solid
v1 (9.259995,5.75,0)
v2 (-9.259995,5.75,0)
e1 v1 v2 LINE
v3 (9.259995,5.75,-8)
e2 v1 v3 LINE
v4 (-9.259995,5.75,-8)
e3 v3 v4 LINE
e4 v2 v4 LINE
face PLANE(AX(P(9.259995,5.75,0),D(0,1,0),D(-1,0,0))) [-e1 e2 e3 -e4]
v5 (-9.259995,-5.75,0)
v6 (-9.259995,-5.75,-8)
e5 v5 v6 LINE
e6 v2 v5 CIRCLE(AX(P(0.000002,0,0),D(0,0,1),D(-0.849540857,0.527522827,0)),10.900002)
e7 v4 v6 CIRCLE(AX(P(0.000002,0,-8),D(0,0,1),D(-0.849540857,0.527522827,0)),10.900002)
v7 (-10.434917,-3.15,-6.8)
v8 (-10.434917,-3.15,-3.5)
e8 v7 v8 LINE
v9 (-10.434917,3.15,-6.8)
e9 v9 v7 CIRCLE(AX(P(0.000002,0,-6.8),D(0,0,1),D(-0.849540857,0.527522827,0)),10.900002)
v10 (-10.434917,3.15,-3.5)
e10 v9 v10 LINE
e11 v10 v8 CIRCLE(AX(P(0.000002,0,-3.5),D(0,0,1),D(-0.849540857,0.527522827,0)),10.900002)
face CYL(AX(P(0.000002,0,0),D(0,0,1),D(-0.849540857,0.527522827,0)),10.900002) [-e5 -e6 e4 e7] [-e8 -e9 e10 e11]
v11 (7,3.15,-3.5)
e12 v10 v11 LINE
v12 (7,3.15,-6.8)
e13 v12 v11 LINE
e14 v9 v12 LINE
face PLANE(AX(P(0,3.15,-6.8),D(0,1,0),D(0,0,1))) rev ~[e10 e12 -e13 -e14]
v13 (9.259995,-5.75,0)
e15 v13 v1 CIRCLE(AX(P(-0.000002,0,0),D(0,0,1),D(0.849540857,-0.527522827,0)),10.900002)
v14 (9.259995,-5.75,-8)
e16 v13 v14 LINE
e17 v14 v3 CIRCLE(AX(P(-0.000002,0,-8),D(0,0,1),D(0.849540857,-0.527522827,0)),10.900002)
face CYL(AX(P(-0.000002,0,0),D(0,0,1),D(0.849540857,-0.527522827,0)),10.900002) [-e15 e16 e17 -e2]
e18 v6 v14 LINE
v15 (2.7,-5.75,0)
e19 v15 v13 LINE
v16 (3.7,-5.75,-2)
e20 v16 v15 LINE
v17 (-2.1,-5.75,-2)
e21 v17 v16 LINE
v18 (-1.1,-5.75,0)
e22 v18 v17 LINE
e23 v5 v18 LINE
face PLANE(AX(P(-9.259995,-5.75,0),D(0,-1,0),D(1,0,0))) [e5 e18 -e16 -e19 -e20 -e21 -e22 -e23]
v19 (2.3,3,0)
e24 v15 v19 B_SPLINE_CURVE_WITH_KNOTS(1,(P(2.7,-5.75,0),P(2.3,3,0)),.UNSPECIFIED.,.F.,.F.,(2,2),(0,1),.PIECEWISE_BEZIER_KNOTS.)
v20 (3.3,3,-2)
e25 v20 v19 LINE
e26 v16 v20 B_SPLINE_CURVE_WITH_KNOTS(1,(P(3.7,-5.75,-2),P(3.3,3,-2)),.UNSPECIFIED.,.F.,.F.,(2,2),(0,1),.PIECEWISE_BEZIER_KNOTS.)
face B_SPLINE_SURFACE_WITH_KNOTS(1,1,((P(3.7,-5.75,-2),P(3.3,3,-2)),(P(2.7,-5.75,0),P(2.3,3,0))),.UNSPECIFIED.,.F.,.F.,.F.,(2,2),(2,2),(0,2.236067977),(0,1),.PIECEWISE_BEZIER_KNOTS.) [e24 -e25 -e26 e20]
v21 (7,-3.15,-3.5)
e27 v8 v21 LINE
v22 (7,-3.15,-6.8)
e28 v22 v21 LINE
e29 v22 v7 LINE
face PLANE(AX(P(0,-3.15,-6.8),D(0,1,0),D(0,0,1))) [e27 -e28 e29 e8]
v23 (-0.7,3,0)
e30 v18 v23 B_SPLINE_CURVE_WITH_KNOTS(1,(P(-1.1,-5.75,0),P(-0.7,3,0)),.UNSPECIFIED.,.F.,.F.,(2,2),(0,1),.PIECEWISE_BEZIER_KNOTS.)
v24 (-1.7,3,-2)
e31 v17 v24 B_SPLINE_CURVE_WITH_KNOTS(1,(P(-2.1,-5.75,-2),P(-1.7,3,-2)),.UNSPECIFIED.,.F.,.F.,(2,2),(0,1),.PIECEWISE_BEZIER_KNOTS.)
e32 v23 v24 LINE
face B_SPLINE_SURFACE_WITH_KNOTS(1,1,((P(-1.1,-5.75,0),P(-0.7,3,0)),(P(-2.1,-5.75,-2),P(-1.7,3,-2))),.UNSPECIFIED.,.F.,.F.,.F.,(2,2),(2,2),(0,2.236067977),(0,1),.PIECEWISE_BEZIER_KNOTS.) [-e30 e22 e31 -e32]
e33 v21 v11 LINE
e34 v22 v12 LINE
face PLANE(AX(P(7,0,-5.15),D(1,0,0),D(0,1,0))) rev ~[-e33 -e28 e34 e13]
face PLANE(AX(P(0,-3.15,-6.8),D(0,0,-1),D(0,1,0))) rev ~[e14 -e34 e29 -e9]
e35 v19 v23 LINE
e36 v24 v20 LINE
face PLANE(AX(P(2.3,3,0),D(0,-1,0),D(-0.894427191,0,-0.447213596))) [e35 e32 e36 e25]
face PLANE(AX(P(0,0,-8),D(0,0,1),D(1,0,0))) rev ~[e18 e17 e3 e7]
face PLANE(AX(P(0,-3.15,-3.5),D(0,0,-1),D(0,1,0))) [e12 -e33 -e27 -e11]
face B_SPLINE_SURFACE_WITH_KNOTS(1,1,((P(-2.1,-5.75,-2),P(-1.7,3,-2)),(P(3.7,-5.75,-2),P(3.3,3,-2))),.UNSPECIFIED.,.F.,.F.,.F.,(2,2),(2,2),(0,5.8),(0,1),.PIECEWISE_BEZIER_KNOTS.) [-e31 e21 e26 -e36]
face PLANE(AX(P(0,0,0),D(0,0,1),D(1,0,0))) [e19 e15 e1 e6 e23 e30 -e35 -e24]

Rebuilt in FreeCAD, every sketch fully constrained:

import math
import FreeCAD as App
import Part
import Sketcher

V = App.Vector
Q = App.Units.Quantity

doc = App.newDocument("Part")
body = doc.addObject("PartDesign::Body", "Body")

# Sketch on XY plane
sketch1 = body.newObject("Sketcher::SketchObject", "Sketch")
sketch1.AttachmentSupport = (doc.getObject("XY_Plane"), [""])
sketch1.MapMode = "FlatFace"
sketch1.addGeometry(Part.LineSegment(V(9, 6, 0), V(-9, 6, 0)), False)
sketch1.addGeometry(Part.ArcOfCircle(Part.Circle(V(0, 0, 0), V(0, 0, 1), 11), math.radians(148), math.radians(212)), False)
sketch1.addGeometry(Part.LineSegment(V(-9, -6, 0), V(9, -6, 0)), False)
sketch1.addGeometry(Part.ArcOfCircle(Part.Circle(V(0, 0, 0), V(0, 0, 1), 11), math.radians(-32), math.radians(32)), False)
sketch1.addConstraint(Sketcher.Constraint("Coincident", 0, 2, 1, 1))
sketch1.addConstraint(Sketcher.Constraint("Coincident", 1, 2, 2, 1))
sketch1.addConstraint(Sketcher.Constraint("Coincident", 2, 2, 3, 1))
sketch1.addConstraint(Sketcher.Constraint("Coincident", 3, 2, 0, 1))
sketch1.addConstraint(Sketcher.Constraint("Horizontal", 0))
sketch1.addConstraint(Sketcher.Constraint("Horizontal", 2))
sketch1.addConstraint(Sketcher.Constraint("Coincident", 1, 3, -1, 1))
sketch1.addConstraint(Sketcher.Constraint("Coincident", 3, 3, -1, 1))
sketch1.addConstraint(Sketcher.Constraint("Equal", 1, 3))
sketch1.addConstraint(Sketcher.Constraint("Vertical", 0, 2, 1, 2))
sketch1.addConstraint(Sketcher.Constraint("DistanceY", 1, 2, 0, 2, Q("11.5 mm")))
sketch1.addConstraint(Sketcher.Constraint("Radius", 1, Q("10.900002 mm")))
pad1 = body.newObject("PartDesign::Pad", "Pad")
pad1.Profile = sketch1
pad1.Length = 8
pad1.Reversed = True

# Sketch on XZ plane
sketch2 = body.newObject("Sketcher::SketchObject", "Sketch001")
sketch2.AttachmentSupport = (doc.getObject("XZ_Plane"), [""])
sketch2.MapMode = "FlatFace"
sketch2.AttachmentOffset = App.Placement(V(0, 0, 5.75), App.Rotation())
sketch2.addGeometry(Part.LineSegment(V(2.7, 0, 0), V(-1.1, 0, 0)), False)
sketch2.addGeometry(Part.LineSegment(V(-1.1, 0, 0), V(-2.1, -2, 0)), False)
sketch2.addGeometry(Part.LineSegment(V(-2.1, -2, 0), V(3.7, -2, 0)), False)
sketch2.addGeometry(Part.LineSegment(V(3.7, -2, 0), V(2.7, 0, 0)), False)
sketch2.addConstraint(Sketcher.Constraint("Coincident", 0, 2, 1, 1))
sketch2.addConstraint(Sketcher.Constraint("Coincident", 1, 2, 2, 1))
sketch2.addConstraint(Sketcher.Constraint("Coincident", 2, 2, 3, 1))
sketch2.addConstraint(Sketcher.Constraint("Coincident", 3, 2, 0, 1))
sketch2.addConstraint(Sketcher.Constraint("Horizontal", 0))
sketch2.addConstraint(Sketcher.Constraint("Horizontal", 2))
sketch2.addConstraint(Sketcher.Constraint("PointOnObject", 0, 2, -1))
sketch2.addConstraint(Sketcher.Constraint("Equal", 1, 3))
sketch2.addConstraint(Sketcher.Constraint("DistanceX", 0, 2, 0, 1, Q("3.8 mm")))
sketch2.addConstraint(Sketcher.Constraint("DistanceX", 2, 1, 2, 2, Q("5.8 mm")))
sketch2.addConstraint(Sketcher.Constraint("DistanceY", 1, 2, -1, 1, Q("2 mm")))
sketch2.addConstraint(Sketcher.Constraint("DistanceX", 0, 2, -1, 1, Q("1.1 mm")))

# Sketch on XZ plane
sketch3 = body.newObject("Sketcher::SketchObject", "Sketch002")
sketch3.AttachmentSupport = (doc.getObject("XZ_Plane"), [""])
sketch3.MapMode = "FlatFace"
sketch3.AttachmentOffset = App.Placement(V(0, 0, -3), App.Rotation())
sketch3.addGeometry(Part.LineSegment(V(3.3, -2, 0), V(2.3, 0, 0)), False)
sketch3.addGeometry(Part.LineSegment(V(2.3, 0, 0), V(-0.7, 0, 0)), False)
sketch3.addGeometry(Part.LineSegment(V(-0.7, 0, 0), V(-1.7, -2, 0)), False)
sketch3.addGeometry(Part.LineSegment(V(-1.7, -2, 0), V(3.3, -2, 0)), False)
sketch3.addConstraint(Sketcher.Constraint("Coincident", 0, 2, 1, 1))
sketch3.addConstraint(Sketcher.Constraint("Coincident", 1, 2, 2, 1))
sketch3.addConstraint(Sketcher.Constraint("Coincident", 2, 2, 3, 1))
sketch3.addConstraint(Sketcher.Constraint("Coincident", 3, 2, 0, 1))
sketch3.addConstraint(Sketcher.Constraint("Horizontal", 1))
sketch3.addConstraint(Sketcher.Constraint("Horizontal", 3))
sketch3.addConstraint(Sketcher.Constraint("PointOnObject", 0, 2, -1))
sketch3.addConstraint(Sketcher.Constraint("Equal", 0, 2))
sketch3.addConstraint(Sketcher.Constraint("DistanceX", 1, 2, 1, 1, Q("3 mm")))
sketch3.addConstraint(Sketcher.Constraint("DistanceX", 3, 1, 3, 2, Q("5 mm")))
sketch3.addConstraint(Sketcher.Constraint("DistanceY", 2, 2, -1, 1, Q("2 mm")))
sketch3.addConstraint(Sketcher.Constraint("DistanceX", -1, 1, 0, 2, Q("2.3 mm")))

subtractiveloft = body.newObject("PartDesign::SubtractiveLoft", "SubtractiveLoft")
subtractiveloft.Profile = sketch2
subtractiveloft.Sections = [sketch3]

# Sketch on YZ plane
sketch4 = body.newObject("Sketcher::SketchObject", "Sketch003")
sketch4.AttachmentSupport = (doc.getObject("YZ_Plane"), [""])
sketch4.MapMode = "FlatFace"
sketch4.addGeometry(Part.LineSegment(V(-3.1, -3.5, 0), V(-3.1, -6.8, 0)), False)
sketch4.addGeometry(Part.LineSegment(V(-3.1, -6.8, 0), V(3.1, -6.8, 0)), False)
sketch4.addGeometry(Part.LineSegment(V(3.1, -6.8, 0), V(3.1, -3.5, 0)), False)
sketch4.addGeometry(Part.LineSegment(V(3.1, -3.5, 0), V(-3.1, -3.5, 0)), False)
sketch4.addConstraint(Sketcher.Constraint("Coincident", 0, 2, 1, 1))
sketch4.addConstraint(Sketcher.Constraint("Coincident", 1, 2, 2, 1))
sketch4.addConstraint(Sketcher.Constraint("Coincident", 2, 2, 3, 1))
sketch4.addConstraint(Sketcher.Constraint("Coincident", 3, 2, 0, 1))
sketch4.addConstraint(Sketcher.Constraint("Vertical", 0))
sketch4.addConstraint(Sketcher.Constraint("Horizontal", 1))
sketch4.addConstraint(Sketcher.Constraint("Vertical", 2))
sketch4.addConstraint(Sketcher.Constraint("Horizontal", 3))
sketch4.addConstraint(Sketcher.Constraint("DistanceX", 1, 1, 1, 2, Q("6.3 mm")))
sketch4.addConstraint(Sketcher.Constraint("DistanceY", 0, 2, 0, 1, Q("3.3 mm")))
sketch4.addConstraint(Sketcher.Constraint("DistanceY", 0, 2, -1, 1, Q("6.8 mm")))
sketch4.addConstraint(Sketcher.Constraint("DistanceX", 0, 2, -1, 1, Q("3.15 mm")))
pocket1 = body.newObject("PartDesign::Pocket", "Pocket")
pocket1.Profile = sketch4
pocket1.Length = 11.9

# Sketch on YZ plane
sketch5 = body.newObject("Sketcher::SketchObject", "Sketch004")
sketch5.AttachmentSupport = (doc.getObject("YZ_Plane"), [""])
sketch5.MapMode = "FlatFace"
sketch5.addGeometry(Part.LineSegment(V(-3.1, -3.5, 0), V(-3.1, -6.8, 0)), False)
sketch5.addGeometry(Part.LineSegment(V(-3.1, -6.8, 0), V(3.1, -6.8, 0)), False)
sketch5.addGeometry(Part.LineSegment(V(3.1, -6.8, 0), V(3.1, -3.5, 0)), False)
sketch5.addGeometry(Part.LineSegment(V(3.1, -3.5, 0), V(-3.1, -3.5, 0)), False)
sketch5.addConstraint(Sketcher.Constraint("Coincident", 0, 2, 1, 1))
sketch5.addConstraint(Sketcher.Constraint("Coincident", 1, 2, 2, 1))
sketch5.addConstraint(Sketcher.Constraint("Coincident", 2, 2, 3, 1))
sketch5.addConstraint(Sketcher.Constraint("Coincident", 3, 2, 0, 1))
sketch5.addConstraint(Sketcher.Constraint("Vertical", 0))
sketch5.addConstraint(Sketcher.Constraint("Horizontal", 1))
sketch5.addConstraint(Sketcher.Constraint("Vertical", 2))
sketch5.addConstraint(Sketcher.Constraint("Horizontal", 3))
sketch5.addConstraint(Sketcher.Constraint("DistanceX", 1, 1, 1, 2, Q("6.3 mm")))
sketch5.addConstraint(Sketcher.Constraint("DistanceY", 0, 2, 0, 1, Q("3.3 mm")))
sketch5.addConstraint(Sketcher.Constraint("DistanceY", 0, 2, -1, 1, Q("6.8 mm")))
sketch5.addConstraint(Sketcher.Constraint("DistanceX", 0, 2, -1, 1, Q("3.15 mm")))
pocket2 = body.newObject("PartDesign::Pocket", "Pocket001")
pocket2.Profile = sketch5
pocket2.Length = 7
pocket2.Reversed = True

doc.recompute()
